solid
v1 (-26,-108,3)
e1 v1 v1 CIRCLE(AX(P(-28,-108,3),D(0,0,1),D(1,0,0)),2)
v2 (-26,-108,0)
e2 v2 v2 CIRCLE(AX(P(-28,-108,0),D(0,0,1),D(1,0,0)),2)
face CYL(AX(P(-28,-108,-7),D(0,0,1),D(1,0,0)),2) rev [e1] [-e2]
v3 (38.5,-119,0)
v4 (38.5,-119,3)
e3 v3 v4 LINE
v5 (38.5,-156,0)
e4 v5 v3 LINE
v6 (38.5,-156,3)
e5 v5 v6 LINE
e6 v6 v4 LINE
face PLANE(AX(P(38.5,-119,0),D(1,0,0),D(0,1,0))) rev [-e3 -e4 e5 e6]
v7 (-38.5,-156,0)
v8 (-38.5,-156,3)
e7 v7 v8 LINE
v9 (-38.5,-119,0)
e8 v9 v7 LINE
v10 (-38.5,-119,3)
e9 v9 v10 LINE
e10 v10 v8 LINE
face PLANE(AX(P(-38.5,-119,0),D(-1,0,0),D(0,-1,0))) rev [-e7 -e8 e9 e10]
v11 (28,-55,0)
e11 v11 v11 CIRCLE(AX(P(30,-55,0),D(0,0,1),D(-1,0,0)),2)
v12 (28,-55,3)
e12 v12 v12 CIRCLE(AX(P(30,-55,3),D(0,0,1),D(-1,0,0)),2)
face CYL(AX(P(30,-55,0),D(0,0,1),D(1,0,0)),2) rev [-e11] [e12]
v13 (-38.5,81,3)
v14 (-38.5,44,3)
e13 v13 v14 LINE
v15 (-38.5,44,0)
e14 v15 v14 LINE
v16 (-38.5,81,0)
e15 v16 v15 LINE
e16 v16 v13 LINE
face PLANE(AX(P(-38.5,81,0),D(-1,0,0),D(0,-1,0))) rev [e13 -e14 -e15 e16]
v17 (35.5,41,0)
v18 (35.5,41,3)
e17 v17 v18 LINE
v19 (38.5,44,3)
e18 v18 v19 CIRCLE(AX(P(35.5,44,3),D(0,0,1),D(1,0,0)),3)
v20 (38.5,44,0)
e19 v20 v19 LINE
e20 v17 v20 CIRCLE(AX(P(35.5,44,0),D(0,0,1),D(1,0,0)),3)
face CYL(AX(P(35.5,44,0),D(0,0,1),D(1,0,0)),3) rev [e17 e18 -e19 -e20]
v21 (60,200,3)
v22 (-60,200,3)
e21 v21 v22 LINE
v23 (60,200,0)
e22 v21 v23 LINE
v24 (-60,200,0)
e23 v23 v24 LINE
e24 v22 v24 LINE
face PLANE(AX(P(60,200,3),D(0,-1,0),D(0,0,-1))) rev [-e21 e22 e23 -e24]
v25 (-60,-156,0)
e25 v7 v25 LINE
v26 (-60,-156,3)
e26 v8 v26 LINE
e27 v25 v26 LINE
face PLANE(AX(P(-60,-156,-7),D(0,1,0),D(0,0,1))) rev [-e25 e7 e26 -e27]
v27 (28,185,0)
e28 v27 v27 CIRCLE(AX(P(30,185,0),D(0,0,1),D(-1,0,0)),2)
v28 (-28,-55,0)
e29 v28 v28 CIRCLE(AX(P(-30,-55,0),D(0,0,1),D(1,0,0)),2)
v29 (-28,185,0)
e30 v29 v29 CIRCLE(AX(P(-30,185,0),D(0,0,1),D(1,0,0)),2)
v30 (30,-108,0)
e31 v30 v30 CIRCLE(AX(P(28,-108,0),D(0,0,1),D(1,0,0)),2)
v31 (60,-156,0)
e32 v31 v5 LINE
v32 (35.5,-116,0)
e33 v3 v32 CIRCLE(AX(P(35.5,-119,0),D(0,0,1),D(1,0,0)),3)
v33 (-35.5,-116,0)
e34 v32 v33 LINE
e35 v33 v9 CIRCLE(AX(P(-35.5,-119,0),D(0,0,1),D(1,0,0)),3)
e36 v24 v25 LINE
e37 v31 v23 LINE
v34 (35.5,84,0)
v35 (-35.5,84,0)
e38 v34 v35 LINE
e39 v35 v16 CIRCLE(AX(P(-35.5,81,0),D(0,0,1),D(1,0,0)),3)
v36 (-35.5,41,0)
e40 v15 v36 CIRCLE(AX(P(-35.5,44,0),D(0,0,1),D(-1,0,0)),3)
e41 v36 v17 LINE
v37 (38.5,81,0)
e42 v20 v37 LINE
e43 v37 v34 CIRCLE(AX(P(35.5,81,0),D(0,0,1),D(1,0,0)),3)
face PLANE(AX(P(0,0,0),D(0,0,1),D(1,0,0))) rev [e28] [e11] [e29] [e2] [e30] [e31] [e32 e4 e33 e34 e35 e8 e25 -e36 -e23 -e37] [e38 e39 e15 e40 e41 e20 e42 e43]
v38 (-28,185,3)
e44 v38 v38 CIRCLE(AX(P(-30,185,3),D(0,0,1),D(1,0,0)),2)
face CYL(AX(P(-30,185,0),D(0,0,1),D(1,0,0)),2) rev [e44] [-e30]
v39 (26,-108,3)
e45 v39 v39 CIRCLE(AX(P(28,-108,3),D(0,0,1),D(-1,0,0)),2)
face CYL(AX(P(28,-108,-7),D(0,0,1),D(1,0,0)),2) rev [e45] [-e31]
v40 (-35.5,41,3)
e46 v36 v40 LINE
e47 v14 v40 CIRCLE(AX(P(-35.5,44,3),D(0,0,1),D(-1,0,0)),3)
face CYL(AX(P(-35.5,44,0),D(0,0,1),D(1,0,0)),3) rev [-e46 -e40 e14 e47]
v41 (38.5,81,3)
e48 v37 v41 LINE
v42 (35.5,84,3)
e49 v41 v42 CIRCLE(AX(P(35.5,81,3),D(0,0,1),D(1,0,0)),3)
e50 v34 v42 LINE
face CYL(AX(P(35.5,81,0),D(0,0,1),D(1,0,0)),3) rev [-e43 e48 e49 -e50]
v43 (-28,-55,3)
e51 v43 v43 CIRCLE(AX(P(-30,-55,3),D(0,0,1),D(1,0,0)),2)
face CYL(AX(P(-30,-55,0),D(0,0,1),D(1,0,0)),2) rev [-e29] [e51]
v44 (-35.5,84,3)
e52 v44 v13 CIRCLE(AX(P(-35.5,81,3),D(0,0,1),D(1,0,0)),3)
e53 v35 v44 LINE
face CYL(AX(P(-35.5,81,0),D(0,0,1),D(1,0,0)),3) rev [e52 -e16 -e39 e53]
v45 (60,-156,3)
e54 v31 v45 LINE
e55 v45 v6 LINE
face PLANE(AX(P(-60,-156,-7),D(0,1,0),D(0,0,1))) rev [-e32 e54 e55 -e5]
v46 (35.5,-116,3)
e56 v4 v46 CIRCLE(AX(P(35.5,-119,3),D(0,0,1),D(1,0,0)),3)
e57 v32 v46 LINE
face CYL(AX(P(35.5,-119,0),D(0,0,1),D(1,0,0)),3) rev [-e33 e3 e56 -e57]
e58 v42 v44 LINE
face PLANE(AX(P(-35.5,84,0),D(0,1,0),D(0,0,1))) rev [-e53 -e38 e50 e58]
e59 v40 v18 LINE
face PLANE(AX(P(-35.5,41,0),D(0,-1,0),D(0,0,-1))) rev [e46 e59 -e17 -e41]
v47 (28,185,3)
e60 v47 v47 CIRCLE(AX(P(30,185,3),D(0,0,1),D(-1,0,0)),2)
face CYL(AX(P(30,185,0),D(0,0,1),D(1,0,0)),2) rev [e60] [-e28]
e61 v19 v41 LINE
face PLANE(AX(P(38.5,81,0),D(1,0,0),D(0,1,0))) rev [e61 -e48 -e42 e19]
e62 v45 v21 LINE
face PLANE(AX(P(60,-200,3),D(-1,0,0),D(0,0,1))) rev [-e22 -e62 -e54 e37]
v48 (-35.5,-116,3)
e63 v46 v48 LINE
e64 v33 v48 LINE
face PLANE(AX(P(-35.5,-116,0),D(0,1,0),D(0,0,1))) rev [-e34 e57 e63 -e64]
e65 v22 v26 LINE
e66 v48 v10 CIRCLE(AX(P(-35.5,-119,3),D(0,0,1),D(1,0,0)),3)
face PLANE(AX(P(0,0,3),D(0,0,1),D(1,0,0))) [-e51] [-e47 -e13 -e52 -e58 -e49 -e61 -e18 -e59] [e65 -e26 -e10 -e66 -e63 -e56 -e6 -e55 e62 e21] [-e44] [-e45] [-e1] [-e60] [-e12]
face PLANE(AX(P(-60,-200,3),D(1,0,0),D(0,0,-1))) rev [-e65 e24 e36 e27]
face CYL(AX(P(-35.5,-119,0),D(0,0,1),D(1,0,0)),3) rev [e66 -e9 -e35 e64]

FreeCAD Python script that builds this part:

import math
import FreeCAD as App
import Part
import Sketcher
from FreeCAD import Vector
Q = App.Units.Quantity


def add_polygon(sketch, points):
    """Adds a closed chain of lines whose ends are joined by coincident constraints."""
    first, n = sketch.GeometryCount, len(points)
    for a, b in zip(points, points[1:] + points[:1]):
        sketch.addGeometry(Part.LineSegment(App.Vector(*a, 0), App.Vector(*b, 0)), False)
    for i in range(n):
        sketch.addConstraint(Sketcher.Constraint("Coincident", first + i, 2, first + (i + 1) % n, 1))

doc = App.newDocument("Part")
body = doc.addObject("PartDesign::Body", "Body")

# Sketch on XY plane
sketch1 = doc.addObject("Sketcher::SketchObject", "Sketch")
body.addObject(sketch1)
sketch1.AttachmentSupport = (doc.XY_Plane, [""])
sketch1.MapMode = "FlatFace"
add_polygon(sketch1, [(-60, 200), (-60, -200), (60, -200), (60, 200)])  # lines 0-3
sketch1.addConstraint(Sketcher.Constraint("Vertical", 0))
sketch1.addConstraint(Sketcher.Constraint("Horizontal", 1))
sketch1.addConstraint(Sketcher.Constraint("Vertical", 2))
sketch1.addConstraint(Sketcher.Constraint("Horizontal", 3))
sketch1.addConstraint(Sketcher.Constraint("Symmetric", 0, 2, 2, 2, -1, 1))
sketch1.addConstraint(Sketcher.Constraint("DistanceX", 1, 1, 1, 2, Q("120 mm")))
sketch1.addConstraint(Sketcher.Constraint("DistanceY", 0, 2, 0, 1, Q("400 mm")))
pad1 = doc.addObject("PartDesign::Pad", "Pad")
body.addObject(pad1)
pad1.Profile = sketch1
pad1.Length = 3

# Sketch on XY plane
sketch2 = doc.addObject("Sketcher::SketchObject", "Sketch001")
body.addObject(sketch2)
sketch2.AttachmentSupport = (doc.XY_Plane, [""])
sketch2.MapMode = "FlatFace"
sketch2.AttachmentOffset = App.Placement(Vector(0, 0, 3), App.Rotation())
sketch2.addGeometry(Part.LineSegment(Vector(35.5, -116, 0), Vector(-35.5, -116, 0)), False)
sketch2.addGeometry(Part.ArcOfCircle(Part.Circle(Vector(-35.5, -119, 0), Vector(0, 0, 1), 3), math.radians(90), math.radians(180)), False)
sketch2.addGeometry(Part.LineSegment(Vector(-38.5, -119, 0), Vector(-38.5, -156, 0)), False)
sketch2.addGeometry(Part.ArcOfCircle(Part.Circle(Vector(-35.5, -156, 0), Vector(0, 0, 1), 3), math.radians(180), math.radians(270)), False)
sketch2.addGeometry(Part.LineSegment(Vector(-35.5, -159, 0), Vector(35.5, -159, 0)), False)
sketch2.addGeometry(Part.ArcOfCircle(Part.Circle(Vector(35.5, -156, 0), Vector(0, 0, 1), 3), math.radians(-90), math.radians(0)), False)
sketch2.addGeometry(Part.LineSegment(Vector(38.5, -156, 0), Vector(38.5, -119, 0)), False)
sketch2.addGeometry(Part.ArcOfCircle(Part.Circle(Vector(35.5, -119, 0), Vector(0, 0, 1), 3), math.radians(0), math.radians(90)), False)
sketch2.addGeometry(Part.LineSegment(Vector(35.5, 84, 0), Vector(-35.5, 84, 0)), False)
sketch2.addGeometry(Part.ArcOfCircle(Part.Circle(Vector(-35.5, 81, 0), Vector(0, 0, 1), 3), math.radians(90), math.radians(180)), False)
sketch2.addGeometry(Part.LineSegment(Vector(-38.5, 81, 0), Vector(-38.5, 44, 0)), False)
sketch2.addGeometry(Part.ArcOfCircle(Part.Circle(Vector(-35.5, 44, 0), Vector(0, 0, 1), 3), math.radians(180), math.radians(270)), False)
sketch2.addGeometry(Part.LineSegment(Vector(-35.5, 41, 0), Vector(35.5, 41, 0)), False)
sketch2.addGeometry(Part.ArcOfCircle(Part.Circle(Vector(35.5, 44, 0), Vector(0, 0, 1), 3), math.radians(-90), math.radians(0)), False)
sketch2.addGeometry(Part.LineSegment(Vector(38.5, 44, 0), Vector(38.5, 81, 0)), False)
sketch2.addGeometry(Part.ArcOfCircle(Part.Circle(Vector(35.5, 81, 0), Vector(0, 0, 1), 3), math.radians(0), math.radians(90)), False)
sketch2.addConstraint(Sketcher.Constraint("Tangent", 0, 2, 1, 1))
sketch2.addConstraint(Sketcher.Constraint("Tangent", 1, 2, 2, 1))
sketch2.addConstraint(Sketcher.Constraint("Tangent", 2, 2, 3, 1))
sketch2.addConstraint(Sketcher.Constraint("Tangent", 3, 2, 4, 1))
sketch2.addConstraint(Sketcher.Constraint("Tangent", 4, 2, 5, 1))
sketch2.addConstraint(Sketcher.Constraint("Tangent", 5, 2, 6, 1))
sketch2.addConstraint(Sketcher.Constraint("Tangent", 6, 2, 7, 1))
sketch2.addConstraint(Sketcher.Constraint("Tangent", 7, 2, 0, 1))
sketch2.addConstraint(Sketcher.Constraint("Tangent", 8, 2, 9, 1))
sketch2.addConstraint(Sketcher.Constraint("Tangent", 9, 2, 10, 1))
sketch2.addConstraint(Sketcher.Constraint("Tangent", 10, 2, 11, 1))
sketch2.addConstraint(Sketcher.Constraint("Tangent", 11, 2, 12, 1))
sketch2.addConstraint(Sketcher.Constraint("Tangent", 12, 2, 13, 1))
sketch2.addConstraint(Sketcher.Constraint("Tangent", 13, 2, 14, 1))
sketch2.addConstraint(Sketcher.Constraint("Tangent", 14, 2, 15, 1))
sketch2.addConstraint(Sketcher.Constraint("Tangent", 15, 2, 8, 1))
sketch2.addConstraint(Sketcher.Constraint("Horizontal", 0))
sketch2.addConstraint(Sketcher.Constraint("Vertical", 2))
sketch2.addConstraint(Sketcher.Constraint("Horizontal", 4))
sketch2.addConstraint(Sketcher.Constraint("Vertical", 6))
sketch2.addConstraint(Sketcher.Constraint("Horizontal", 8))
sketch2.addConstraint(Sketcher.Constraint("Vertical", 10))
sketch2.addConstraint(Sketcher.Constraint("Horizontal", 12))
sketch2.addConstraint(Sketcher.Constraint("Vertical", 14))
sketch2.addConstraint(Sketcher.Constraint("Equal", 1, 3))
sketch2.addConstraint(Sketcher.Constraint("Equal", 3, 5))
sketch2.addConstraint(Sketcher.Constraint("Equal", 5, 7))
sketch2.addConstraint(Sketcher.Constraint("Equal", 7, 9))
sketch2.addConstraint(Sketcher.Constraint("Equal", 9, 11))
sketch2.addConstraint(Sketcher.Constraint("Equal", 11, 13))
sketch2.addConstraint(Sketcher.Constraint("Equal", 13, 15))
sketch2.addConstraint(Sketcher.Constraint("Vertical", 3, 3, 9, 3))
sketch2.addConstraint(Sketcher.Constraint("Vertical", 7, 3, 13, 3))
sketch2.addConstraint(Sketcher.Constraint("Equal", 6, 10))
sketch2.addConstraint(Sketcher.Constraint("Radius", 1, Q("3 mm")))
sketch2.addConstraint(Sketcher.Constraint("DistanceX", 0, 2, 0, 1, Q("71 mm")))
sketch2.addConstraint(Sketcher.Constraint("DistanceY", 2, 2, 2, 1, Q("37 mm")))
sketch2.addConstraint(Sketcher.Constraint("DistanceY", 1, 3, -1, 1, Q("119 mm")))
sketch2.addConstraint(Sketcher.Constraint("DistanceY", -1, 1, 9, 3, Q("81 mm")))
sketch2.addConstraint(Sketcher.Constraint("DistanceX", 1, 3, -1, 1, Q("35.5 mm")))
pocket1 = doc.addObject("PartDesign::Pocket", "Pocket")
body.addObject(pocket1)
pocket1.Profile = sketch2
pocket1.Length = 3

# Sketch on XY plane
sketch3 = doc.addObject("Sketcher::SketchObject", "Sketch002")
body.addObject(sketch3)
sketch3.AttachmentSupport = (doc.XY_Plane, [""])
sketch3.MapMode = "FlatFace"
sketch3.AttachmentOffset = App.Placement(Vector(0, 0, 3), App.Rotation())
sketch3.addGeometry(Part.Circle(Vector(-30, 185, 0), Vector(0, 0, 1), 2), False)
sketch3.addGeometry(Part.Circle(Vector(-30, 65, 0), Vector(0, 0, 1), 2), False)
sketch3.addGeometry(Part.Circle(Vector(-30, -55, 0), Vector(0, 0, 1), 2), False)
sketch3.addGeometry(Part.Circle(Vector(-30, -175, 0), Vector(0, 0, 1), 2), False)
sketch3.addGeometry(Part.Circle(Vector(30, -175, 0), Vector(0, 0, 1), 2), False)
sketch3.addGeometry(Part.Circle(Vector(30, -55, 0), Vector(0, 0, 1), 2), False)
sketch3.addGeometry(Part.Circle(Vector(30, 65, 0), Vector(0, 0, 1), 2), False)
sketch3.addGeometry(Part.Circle(Vector(30, 185, 0), Vector(0, 0, 1), 2), False)
sketch3.addConstraint(Sketcher.Constraint("Equal", 0, 1))
sketch3.addConstraint(Sketcher.Constraint("Equal", 1, 2))
sketch3.addConstraint(Sketcher.Constraint("Equal", 2, 3))
sketch3.addConstraint(Sketcher.Constraint("Equal", 3, 4))
sketch3.addConstraint(Sketcher.Constraint("Equal", 4, 5))
sketch3.addConstraint(Sketcher.Constraint("Equal", 5, 6))
sketch3.addConstraint(Sketcher.Constraint("Equal", 6, 7))
sketch3.addConstraint(Sketcher.Constraint("Symmetric", 3, 3, 4, 3, -2))
sketch3.addConstraint(Sketcher.Constraint("Symmetric", 2, 3, 5, 3, -2))
sketch3.addConstraint(Sketcher.Constraint("Symmetric", 1, 3, 6, 3, -2))
sketch3.addConstraint(Sketcher.Constraint("Symmetric", 0, 3, 7, 3, -2))
sketch3.addConstraint(Sketcher.Constraint("Vertical", 0, 3, 1, 3))
sketch3.addConstraint(Sketcher.Constraint("Vertical", 1, 3, 2, 3))
sketch3.addConstraint(Sketcher.Constraint("Vertical", 2, 3, 3, 3))
sketch3.addConstraint(Sketcher.Constraint("Diameter", 0, Q("4 mm")))
sketch3.addConstraint(Sketcher.Constraint("DistanceX", 0, 3, -1, 1, Q("30 mm")))
sketch3.addConstraint(Sketcher.Constraint("DistanceY", -1, 1, 0, 3, Q("185 mm")))
sketch3.addConstraint(Sketcher.Constraint("DistanceY", -1, 1, 1, 3, Q("65 mm")))
sketch3.addConstraint(Sketcher.Constraint("DistanceY", 2, 3, -1, 1, Q("55 mm")))
sketch3.addConstraint(Sketcher.Constraint("DistanceY", 3, 3, -1, 1, Q("175 mm")))
pocket2 = doc.addObject("PartDesign::Pocket", "Pocket001")
body.addObject(pocket2)
pocket2.Profile = sketch3
pocket2.Length = 3

# Sketch on XY plane
sketch4 = doc.addObject("Sketcher::SketchObject", "Sketch003")
body.addObject(sketch4)
sketch4.AttachmentSupport = (doc.XY_Plane, [""])
sketch4.MapMode = "FlatFace"
sketch4.AttachmentOffset = App.Placement(Vector(0, 0, 3), App.Rotation())
add_polygon(sketch4, [(-60, -156), (-60, -200), (60, -200), (60, -156)])  # lines 0-3
sketch4.addConstraint(Sketcher.Constraint("Vertical", 0))
sketch4.addConstraint(Sketcher.Constraint("Horizontal", 1))
sketch4.addConstraint(Sketcher.Constraint("Vertical", 2))
sketch4.addConstraint(Sketcher.Constraint("Horizontal", 3))
sketch4.addConstraint(Sketcher.Constraint("DistanceX", 1, 1, 1, 2, Q("120 mm")))
sketch4.addConstraint(Sketcher.Constraint("DistanceY", 0, 2, 0, 1, Q("44 mm")))
sketch4.addConstraint(Sketcher.Constraint("DistanceX", 0, 2, -1, 1, Q("60 mm")))
sketch4.addConstraint(Sketcher.Constraint("DistanceY", 0, 2, -1, 1, Q("200 mm")))
pocket3 = doc.addObject("PartDesign::Pocket", "Pocket002")
body.addObject(pocket3)
pocket3.Profile = sketch4
pocket3.Length = 10

# Sketch on XY plane
sketch5 = doc.addObject("Sketcher::SketchObject", "Sketch004")
body.addObject(sketch5)
sketch5.AttachmentSupport = (doc.XY_Plane, [""])
sketch5.MapMode = "FlatFace"
sketch5.AttachmentOffset = App.Placement(Vector(0, 0, 3), App.Rotation())
sketch5.addGeometry(Part.Circle(Vector(-28, -108, 0), Vector(0, 0, 1), 2), False)
sketch5.addGeometry(Part.Circle(Vector(28, -108, 0), Vector(0, 0, 1), 2), False)
sketch5.addConstraint(Sketcher.Constraint("Equal", 0, 1))
sketch5.addConstraint(Sketcher.Constraint("Symmetric", 0, 3, 1, 3, -2))
sketch5.addConstraint(Sketcher.Constraint("Diameter", 0, Q("4 mm")))
sketch5.addConstraint(Sketcher.Constraint("DistanceX", 0, 3, -1, 1, Q("28 mm")))
sketch5.addConstraint(Sketcher.Constraint("DistanceY", 0, 3, -1, 1, Q("108 mm")))
pocket4 = doc.addObject("PartDesign::Pocket", "Pocket003")
body.addObject(pocket4)
pocket4.Profile = sketch5
pocket4.Length = 10

doc.recompute()
